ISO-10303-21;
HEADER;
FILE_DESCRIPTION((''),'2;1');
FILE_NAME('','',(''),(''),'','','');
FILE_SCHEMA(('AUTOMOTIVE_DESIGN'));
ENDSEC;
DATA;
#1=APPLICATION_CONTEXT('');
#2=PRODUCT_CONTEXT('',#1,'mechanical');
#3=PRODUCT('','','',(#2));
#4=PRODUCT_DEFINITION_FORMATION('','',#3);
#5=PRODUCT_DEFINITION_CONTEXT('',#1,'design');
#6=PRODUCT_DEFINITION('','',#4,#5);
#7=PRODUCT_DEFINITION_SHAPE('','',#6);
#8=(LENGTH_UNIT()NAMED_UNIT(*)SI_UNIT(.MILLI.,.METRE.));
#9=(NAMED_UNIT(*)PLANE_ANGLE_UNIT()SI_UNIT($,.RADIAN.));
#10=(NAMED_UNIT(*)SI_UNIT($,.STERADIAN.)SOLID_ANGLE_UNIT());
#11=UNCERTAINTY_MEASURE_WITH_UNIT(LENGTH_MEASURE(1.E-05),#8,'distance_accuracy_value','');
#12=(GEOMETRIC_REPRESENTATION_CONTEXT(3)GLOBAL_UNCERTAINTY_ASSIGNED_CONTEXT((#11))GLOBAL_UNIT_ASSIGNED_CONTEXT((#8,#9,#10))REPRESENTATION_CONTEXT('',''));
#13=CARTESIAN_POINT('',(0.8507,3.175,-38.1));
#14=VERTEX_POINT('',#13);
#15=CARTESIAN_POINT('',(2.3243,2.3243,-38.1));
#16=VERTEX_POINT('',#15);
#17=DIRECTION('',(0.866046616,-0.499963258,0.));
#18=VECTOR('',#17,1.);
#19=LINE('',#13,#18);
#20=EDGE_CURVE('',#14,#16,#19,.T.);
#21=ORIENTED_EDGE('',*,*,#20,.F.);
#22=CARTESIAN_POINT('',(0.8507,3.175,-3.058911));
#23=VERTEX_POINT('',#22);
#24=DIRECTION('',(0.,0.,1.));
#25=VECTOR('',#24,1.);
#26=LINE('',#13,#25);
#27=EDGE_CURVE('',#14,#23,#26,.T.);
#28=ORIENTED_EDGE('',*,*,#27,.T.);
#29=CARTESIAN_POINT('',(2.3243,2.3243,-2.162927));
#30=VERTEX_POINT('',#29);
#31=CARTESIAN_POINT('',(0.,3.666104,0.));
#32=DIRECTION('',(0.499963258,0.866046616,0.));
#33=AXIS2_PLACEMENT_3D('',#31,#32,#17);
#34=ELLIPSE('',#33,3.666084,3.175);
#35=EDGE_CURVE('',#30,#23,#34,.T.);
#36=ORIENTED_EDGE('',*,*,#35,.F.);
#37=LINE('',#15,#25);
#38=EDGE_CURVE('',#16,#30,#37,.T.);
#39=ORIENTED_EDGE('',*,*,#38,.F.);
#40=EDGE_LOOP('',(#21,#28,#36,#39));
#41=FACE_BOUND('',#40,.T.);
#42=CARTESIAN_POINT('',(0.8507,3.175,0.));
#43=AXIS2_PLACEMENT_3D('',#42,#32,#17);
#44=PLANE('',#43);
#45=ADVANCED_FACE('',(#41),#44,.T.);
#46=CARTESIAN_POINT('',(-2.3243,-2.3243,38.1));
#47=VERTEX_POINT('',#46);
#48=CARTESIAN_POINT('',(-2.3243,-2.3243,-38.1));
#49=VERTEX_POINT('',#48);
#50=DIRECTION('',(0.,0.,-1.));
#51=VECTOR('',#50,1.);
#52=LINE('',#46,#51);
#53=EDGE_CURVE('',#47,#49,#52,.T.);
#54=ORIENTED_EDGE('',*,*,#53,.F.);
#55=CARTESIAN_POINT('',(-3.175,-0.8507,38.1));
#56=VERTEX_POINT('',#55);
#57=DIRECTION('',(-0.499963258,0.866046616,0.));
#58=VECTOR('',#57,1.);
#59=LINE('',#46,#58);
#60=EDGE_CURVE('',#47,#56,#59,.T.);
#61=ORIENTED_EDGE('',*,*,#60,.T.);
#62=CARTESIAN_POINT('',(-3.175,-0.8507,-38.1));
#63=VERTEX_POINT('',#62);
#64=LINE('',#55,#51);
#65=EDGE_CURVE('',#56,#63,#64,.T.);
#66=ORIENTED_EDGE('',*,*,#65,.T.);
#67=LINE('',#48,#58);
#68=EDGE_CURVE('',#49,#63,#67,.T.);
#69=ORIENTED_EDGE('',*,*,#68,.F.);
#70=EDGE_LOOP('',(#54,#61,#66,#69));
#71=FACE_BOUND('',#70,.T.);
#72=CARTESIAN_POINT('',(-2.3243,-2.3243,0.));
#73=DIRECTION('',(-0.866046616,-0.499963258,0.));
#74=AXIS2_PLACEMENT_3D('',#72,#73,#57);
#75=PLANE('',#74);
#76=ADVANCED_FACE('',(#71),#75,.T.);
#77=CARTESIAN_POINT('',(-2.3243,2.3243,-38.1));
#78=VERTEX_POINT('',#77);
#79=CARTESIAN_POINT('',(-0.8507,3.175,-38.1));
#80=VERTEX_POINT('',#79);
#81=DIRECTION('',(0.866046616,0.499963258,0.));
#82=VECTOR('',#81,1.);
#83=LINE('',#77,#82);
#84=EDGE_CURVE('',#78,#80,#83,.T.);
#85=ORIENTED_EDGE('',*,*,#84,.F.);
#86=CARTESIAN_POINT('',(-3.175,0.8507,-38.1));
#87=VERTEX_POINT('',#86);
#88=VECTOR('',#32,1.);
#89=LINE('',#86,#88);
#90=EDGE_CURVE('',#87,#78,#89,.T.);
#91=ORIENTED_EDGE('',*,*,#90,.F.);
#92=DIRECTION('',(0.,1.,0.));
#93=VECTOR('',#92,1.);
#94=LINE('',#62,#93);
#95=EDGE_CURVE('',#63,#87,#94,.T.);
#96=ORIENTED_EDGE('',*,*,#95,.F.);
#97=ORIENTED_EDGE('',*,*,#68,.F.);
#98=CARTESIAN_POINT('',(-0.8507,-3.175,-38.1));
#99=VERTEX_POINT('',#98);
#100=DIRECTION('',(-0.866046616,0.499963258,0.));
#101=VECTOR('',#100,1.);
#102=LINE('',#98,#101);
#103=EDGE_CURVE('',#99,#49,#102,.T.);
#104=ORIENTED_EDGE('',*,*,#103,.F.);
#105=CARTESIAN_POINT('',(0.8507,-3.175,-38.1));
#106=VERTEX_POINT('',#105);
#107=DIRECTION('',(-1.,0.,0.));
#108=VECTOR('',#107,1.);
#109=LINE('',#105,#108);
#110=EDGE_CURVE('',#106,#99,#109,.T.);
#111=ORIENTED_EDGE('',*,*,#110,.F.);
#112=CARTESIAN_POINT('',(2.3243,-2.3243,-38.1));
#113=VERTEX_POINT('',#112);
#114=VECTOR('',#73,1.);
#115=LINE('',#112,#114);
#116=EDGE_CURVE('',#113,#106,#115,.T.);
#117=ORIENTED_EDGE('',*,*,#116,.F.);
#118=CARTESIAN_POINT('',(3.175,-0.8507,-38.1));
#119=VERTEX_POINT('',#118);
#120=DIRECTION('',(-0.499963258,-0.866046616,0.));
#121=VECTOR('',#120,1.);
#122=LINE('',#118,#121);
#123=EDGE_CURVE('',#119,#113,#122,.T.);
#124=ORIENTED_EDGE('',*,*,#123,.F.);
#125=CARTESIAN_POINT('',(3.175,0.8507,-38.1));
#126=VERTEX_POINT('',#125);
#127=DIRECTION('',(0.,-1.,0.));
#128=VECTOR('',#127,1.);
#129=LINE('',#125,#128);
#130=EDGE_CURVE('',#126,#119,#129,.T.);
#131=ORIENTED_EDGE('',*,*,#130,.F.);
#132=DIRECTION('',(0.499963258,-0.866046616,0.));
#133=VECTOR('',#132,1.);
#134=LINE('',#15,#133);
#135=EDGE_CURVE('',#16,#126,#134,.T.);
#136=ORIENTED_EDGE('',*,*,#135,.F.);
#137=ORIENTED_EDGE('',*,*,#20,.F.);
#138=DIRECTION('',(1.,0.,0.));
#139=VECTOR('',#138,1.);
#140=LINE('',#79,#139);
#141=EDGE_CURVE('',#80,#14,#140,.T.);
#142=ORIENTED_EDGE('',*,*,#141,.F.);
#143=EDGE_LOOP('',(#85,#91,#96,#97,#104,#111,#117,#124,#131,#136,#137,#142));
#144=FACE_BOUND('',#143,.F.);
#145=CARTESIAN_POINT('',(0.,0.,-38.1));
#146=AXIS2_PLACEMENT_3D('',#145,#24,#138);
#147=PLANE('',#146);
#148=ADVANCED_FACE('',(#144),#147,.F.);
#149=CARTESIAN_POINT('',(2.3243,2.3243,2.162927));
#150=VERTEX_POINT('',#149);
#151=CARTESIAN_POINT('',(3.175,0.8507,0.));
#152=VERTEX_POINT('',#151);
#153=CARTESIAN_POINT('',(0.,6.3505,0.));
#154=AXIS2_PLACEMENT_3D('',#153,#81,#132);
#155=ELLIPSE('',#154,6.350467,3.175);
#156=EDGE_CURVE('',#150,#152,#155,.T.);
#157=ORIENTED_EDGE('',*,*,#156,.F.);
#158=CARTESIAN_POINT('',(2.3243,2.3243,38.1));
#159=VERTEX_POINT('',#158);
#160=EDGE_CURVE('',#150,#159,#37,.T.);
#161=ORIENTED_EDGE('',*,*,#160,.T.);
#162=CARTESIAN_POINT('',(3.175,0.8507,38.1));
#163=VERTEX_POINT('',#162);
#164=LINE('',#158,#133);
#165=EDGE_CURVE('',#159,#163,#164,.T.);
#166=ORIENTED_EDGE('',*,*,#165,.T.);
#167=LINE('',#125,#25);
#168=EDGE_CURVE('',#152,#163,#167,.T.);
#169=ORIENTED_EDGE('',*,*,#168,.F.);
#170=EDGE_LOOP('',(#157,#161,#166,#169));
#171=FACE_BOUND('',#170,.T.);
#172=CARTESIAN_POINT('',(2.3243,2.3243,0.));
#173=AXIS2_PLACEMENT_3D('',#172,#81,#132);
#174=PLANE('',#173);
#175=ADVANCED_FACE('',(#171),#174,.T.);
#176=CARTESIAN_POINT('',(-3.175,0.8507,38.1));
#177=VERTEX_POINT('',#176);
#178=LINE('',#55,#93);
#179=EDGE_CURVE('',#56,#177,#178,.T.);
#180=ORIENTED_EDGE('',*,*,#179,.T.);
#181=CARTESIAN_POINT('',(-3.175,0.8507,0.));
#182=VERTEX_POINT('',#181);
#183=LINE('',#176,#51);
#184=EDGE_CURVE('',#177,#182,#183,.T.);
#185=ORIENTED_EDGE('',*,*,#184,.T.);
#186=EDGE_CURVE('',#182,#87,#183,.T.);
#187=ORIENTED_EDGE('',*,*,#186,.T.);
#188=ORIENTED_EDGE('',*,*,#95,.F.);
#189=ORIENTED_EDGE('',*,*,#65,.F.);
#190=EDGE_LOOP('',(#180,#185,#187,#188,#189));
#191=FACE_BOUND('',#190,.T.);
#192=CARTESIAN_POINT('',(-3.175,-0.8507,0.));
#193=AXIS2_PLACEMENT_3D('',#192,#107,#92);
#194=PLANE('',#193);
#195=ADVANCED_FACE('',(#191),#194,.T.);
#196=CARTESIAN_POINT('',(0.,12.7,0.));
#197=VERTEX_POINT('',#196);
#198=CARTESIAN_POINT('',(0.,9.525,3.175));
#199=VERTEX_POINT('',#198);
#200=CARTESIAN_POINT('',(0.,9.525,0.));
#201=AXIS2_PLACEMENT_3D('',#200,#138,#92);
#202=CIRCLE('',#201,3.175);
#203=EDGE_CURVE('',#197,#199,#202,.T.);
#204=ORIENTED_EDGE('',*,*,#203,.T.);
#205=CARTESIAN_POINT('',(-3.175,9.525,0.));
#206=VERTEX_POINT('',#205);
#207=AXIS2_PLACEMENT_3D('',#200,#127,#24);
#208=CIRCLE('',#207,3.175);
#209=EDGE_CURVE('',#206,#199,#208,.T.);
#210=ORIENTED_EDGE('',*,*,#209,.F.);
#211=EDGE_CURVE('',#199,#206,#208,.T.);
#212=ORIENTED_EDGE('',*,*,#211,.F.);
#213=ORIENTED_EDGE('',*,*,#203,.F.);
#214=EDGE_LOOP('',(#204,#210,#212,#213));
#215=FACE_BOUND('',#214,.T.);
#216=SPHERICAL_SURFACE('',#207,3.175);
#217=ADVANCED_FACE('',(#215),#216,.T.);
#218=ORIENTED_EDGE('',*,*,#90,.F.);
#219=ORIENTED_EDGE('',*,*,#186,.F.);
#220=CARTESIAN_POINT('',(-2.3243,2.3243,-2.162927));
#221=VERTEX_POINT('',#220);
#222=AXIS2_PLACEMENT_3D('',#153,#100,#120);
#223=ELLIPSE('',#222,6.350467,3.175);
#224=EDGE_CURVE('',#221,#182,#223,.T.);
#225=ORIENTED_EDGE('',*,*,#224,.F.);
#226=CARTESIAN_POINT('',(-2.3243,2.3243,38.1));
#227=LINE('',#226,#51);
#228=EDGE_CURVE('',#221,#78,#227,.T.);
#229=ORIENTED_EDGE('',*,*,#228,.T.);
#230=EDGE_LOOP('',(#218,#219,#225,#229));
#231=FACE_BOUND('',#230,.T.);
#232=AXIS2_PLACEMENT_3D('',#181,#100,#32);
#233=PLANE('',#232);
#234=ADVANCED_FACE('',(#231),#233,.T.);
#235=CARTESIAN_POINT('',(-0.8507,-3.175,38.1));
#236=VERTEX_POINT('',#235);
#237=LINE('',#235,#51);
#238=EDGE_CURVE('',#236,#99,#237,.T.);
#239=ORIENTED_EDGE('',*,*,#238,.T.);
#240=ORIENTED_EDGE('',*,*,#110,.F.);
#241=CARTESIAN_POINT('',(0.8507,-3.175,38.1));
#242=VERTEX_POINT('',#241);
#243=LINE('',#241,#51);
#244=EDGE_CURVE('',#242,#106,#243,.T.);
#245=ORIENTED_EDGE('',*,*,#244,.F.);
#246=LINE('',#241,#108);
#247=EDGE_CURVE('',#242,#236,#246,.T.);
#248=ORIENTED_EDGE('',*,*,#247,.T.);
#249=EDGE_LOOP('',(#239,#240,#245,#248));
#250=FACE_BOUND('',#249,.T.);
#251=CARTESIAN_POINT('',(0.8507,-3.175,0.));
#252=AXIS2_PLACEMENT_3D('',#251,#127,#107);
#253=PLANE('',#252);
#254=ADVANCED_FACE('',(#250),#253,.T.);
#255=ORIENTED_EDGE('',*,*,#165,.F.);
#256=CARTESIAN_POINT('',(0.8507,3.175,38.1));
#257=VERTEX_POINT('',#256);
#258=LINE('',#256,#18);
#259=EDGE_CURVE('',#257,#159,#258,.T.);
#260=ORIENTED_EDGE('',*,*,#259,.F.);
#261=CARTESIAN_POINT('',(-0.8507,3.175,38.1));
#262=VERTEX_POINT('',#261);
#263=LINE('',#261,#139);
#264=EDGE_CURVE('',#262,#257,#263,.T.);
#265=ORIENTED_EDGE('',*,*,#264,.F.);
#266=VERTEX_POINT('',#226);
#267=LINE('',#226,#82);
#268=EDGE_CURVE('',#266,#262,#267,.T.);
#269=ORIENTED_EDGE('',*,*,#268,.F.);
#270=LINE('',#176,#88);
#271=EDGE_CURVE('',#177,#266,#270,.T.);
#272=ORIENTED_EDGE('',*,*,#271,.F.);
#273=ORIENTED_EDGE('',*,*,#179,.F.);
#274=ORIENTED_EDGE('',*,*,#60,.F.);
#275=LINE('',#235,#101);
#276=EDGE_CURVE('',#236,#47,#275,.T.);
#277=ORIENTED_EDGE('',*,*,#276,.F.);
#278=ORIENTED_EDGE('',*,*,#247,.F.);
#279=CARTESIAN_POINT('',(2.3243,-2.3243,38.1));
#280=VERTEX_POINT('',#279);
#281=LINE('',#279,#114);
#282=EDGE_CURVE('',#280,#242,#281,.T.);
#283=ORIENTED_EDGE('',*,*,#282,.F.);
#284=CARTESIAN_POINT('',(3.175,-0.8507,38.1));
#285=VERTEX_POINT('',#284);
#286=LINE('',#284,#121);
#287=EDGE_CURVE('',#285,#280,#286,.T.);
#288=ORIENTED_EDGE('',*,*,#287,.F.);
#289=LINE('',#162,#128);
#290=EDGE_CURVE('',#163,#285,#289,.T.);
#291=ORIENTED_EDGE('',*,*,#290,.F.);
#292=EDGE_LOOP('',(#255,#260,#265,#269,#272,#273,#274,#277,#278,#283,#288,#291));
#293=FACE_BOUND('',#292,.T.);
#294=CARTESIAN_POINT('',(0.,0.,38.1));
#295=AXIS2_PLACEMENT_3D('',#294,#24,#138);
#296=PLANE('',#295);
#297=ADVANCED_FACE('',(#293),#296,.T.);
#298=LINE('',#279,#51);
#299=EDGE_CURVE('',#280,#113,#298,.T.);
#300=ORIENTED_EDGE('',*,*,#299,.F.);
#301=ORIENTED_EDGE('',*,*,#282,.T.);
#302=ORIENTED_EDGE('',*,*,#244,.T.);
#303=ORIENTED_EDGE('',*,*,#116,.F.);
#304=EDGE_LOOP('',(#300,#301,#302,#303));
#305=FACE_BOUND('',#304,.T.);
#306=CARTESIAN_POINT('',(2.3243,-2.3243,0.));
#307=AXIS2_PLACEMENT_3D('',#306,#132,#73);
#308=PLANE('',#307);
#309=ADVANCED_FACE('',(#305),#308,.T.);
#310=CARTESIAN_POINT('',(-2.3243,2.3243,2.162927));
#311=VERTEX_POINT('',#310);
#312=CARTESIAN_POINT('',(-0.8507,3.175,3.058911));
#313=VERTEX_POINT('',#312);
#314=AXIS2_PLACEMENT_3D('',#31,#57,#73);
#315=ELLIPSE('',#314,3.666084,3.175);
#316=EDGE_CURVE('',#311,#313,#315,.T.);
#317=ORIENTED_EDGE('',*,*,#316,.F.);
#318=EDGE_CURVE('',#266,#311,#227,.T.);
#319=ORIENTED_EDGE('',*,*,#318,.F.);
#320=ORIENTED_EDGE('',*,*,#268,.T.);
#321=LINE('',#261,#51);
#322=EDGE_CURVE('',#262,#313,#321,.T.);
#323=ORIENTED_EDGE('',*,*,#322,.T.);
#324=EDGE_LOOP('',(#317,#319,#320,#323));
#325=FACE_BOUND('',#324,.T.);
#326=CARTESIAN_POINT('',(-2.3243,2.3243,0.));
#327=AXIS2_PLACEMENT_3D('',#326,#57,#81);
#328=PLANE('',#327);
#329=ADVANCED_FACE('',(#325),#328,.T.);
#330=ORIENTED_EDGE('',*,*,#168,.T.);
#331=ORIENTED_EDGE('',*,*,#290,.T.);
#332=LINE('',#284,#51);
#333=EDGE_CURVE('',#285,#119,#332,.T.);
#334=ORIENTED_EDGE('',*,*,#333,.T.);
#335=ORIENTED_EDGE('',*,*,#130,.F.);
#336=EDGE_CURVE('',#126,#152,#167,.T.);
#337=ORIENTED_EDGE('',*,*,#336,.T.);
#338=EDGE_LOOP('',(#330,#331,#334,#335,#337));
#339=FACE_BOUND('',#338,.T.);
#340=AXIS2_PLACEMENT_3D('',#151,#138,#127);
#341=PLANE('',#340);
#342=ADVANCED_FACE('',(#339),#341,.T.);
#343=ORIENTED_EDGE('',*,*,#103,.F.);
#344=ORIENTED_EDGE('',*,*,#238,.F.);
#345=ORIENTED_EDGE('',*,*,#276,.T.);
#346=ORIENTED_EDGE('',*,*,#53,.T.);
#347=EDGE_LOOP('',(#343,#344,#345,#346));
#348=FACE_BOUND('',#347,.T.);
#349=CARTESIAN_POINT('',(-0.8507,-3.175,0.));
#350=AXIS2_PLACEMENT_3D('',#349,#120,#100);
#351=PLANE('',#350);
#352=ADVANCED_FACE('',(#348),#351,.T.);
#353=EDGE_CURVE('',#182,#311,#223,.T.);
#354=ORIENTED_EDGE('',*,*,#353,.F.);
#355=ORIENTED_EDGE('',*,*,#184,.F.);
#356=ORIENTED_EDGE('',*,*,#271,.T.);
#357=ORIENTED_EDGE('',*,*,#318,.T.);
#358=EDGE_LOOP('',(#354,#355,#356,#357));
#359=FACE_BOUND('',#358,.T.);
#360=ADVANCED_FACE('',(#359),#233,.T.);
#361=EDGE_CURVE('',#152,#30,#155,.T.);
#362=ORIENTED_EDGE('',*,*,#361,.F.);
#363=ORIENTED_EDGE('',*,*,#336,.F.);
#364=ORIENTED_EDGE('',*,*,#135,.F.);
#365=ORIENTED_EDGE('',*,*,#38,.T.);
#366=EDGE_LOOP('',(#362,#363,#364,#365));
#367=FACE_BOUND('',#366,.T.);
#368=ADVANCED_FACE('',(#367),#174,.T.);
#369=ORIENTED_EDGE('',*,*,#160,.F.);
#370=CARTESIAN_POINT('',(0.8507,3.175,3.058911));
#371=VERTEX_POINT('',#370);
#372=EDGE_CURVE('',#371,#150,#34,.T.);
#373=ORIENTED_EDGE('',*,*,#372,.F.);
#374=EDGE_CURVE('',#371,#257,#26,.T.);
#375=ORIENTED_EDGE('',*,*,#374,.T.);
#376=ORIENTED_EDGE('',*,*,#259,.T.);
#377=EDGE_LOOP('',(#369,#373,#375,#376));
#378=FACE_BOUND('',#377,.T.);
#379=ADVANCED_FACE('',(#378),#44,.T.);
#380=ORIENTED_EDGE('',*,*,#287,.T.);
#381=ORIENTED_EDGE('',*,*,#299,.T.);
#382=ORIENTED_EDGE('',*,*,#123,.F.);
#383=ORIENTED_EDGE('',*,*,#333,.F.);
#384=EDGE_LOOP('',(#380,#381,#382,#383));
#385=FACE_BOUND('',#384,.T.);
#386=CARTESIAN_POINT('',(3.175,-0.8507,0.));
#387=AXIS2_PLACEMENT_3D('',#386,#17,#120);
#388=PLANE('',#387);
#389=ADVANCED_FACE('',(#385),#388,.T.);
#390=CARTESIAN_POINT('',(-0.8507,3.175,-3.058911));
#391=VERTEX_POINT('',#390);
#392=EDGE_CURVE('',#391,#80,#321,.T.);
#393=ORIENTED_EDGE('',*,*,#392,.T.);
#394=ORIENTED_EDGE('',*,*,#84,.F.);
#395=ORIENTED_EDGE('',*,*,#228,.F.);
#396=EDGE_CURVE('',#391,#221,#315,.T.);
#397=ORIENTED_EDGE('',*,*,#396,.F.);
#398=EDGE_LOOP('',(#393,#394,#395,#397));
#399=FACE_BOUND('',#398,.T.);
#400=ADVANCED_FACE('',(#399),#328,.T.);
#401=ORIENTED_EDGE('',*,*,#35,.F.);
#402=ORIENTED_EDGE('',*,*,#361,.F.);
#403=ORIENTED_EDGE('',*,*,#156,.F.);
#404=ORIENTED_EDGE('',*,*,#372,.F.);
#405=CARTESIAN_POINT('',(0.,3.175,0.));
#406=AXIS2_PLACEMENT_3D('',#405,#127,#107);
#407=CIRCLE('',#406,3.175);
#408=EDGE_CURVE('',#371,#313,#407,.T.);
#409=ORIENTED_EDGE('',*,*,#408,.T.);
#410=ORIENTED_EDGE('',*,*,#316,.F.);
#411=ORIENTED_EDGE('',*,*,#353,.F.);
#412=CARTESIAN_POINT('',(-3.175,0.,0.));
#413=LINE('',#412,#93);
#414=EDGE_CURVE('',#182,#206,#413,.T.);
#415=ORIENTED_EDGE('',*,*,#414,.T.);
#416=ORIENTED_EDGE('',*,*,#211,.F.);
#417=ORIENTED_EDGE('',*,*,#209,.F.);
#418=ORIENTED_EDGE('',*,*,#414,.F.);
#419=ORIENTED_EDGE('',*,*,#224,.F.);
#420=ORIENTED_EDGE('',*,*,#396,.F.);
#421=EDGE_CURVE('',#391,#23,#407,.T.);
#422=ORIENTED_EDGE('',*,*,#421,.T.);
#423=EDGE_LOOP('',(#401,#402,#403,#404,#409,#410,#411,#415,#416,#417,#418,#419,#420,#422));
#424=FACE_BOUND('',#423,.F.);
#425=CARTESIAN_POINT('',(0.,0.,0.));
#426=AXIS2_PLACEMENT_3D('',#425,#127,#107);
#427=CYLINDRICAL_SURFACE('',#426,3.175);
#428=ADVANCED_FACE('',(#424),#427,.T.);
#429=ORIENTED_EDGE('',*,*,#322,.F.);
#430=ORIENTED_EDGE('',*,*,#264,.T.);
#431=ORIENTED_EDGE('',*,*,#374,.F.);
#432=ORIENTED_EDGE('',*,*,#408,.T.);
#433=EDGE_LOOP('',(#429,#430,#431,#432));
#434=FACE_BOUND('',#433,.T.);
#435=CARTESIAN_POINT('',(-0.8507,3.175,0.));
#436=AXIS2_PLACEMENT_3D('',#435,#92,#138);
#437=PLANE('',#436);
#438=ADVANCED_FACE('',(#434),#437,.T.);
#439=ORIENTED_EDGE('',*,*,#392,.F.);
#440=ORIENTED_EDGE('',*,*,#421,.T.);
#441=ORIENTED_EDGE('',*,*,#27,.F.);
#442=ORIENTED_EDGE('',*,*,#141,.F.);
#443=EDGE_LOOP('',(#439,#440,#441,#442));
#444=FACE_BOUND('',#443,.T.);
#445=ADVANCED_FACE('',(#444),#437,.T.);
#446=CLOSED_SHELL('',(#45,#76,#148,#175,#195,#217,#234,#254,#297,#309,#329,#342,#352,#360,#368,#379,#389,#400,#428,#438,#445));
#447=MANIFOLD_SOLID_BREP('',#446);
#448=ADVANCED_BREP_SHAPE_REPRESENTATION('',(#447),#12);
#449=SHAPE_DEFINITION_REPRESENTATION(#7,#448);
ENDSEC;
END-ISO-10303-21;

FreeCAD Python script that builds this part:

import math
import FreeCAD as App
import Part
import Sketcher

V = App.Vector
Q = App.Units.Quantity


def add_polygon(sketch, points):
    """Adds a closed chain of lines whose ends are joined by coincident constraints."""
    first, n = sketch.GeometryCount, len(points)
    for a, b in zip(points, points[1:] + points[:1]):
        sketch.addGeometry(Part.LineSegment(App.Vector(*a, 0), App.Vector(*b, 0)), False)
    for i in range(n):
        sketch.addConstraint(Sketcher.Constraint("Coincident", first + i, 2, first + (i + 1) % n, 1))

doc = App.newDocument("Part")
params = doc.addObject("Spreadsheet::Sheet", "Params")
for row, (alias, value) in enumerate([
    ("sketch1_length", "0.067 in"),
    ("pad1_length", "3 in"),
    ("sketch2_diameter", "0.25 in"),
    ("pad2_length", "0.5 in"),
    ("sketch3_radius", "0.125 in"),
    ("groove_angle", "360 deg"),
], start=1):
    params.set(f"A{row}", alias)
    params.set(f"B{row}", "=" + value)
    params.setAlias(f"B{row}", alias)

body = doc.addObject("PartDesign::Body", "Body")

sketch1 = body.newObject("Sketcher::SketchObject", "Sketch")
sketch1.AttachmentSupport = (doc.getObject("XY_Plane"), [""])
sketch1.MapMode = "FlatFace"
add_polygon(sketch1, [(3.175, -0.8507), (3.175, 0.8507), (2.3243, 2.3243), (0.8507, 3.175), (-0.8507, 3.175), (-2.3243, 2.3243), (-3.175, 0.8507), (-3.175, -0.8507), (-2.3243, -2.3243), (-0.8507, -3.175), (0.8507, -3.175), (2.3243, -2.3243)])
sketch1.addConstraint(Sketcher.Constraint("Vertical", 0))
sketch1.addConstraint(Sketcher.Constraint("Horizontal", 3))
sketch1.addConstraint(Sketcher.Constraint("Vertical", 6))
sketch1.addConstraint(Sketcher.Constraint("Horizontal", 9))
sketch1.addConstraint(Sketcher.Constraint("Symmetric", 0, 2, 6, 2, -1, 1))
sketch1.addConstraint(Sketcher.Constraint("Symmetric", 1, 2, 7, 2, -1, 1))
sketch1.addConstraint(Sketcher.Constraint("Symmetric", 2, 2, 8, 2, -1, 1))
sketch1.addConstraint(Sketcher.Constraint("Symmetric", 4, 2, 10, 2, -1, 1))
sketch1.addConstraint(Sketcher.Constraint("Symmetric", 1, 2, 4, 2, -2))
sketch1.addConstraint(Sketcher.Constraint("Perpendicular", 1, 4))
sketch1.addConstraint(Sketcher.Constraint("Perpendicular", 2, 5))
sketch1.addConstraint(Sketcher.Constraint("Perpendicular", 7, 10))
sketch1.addConstraint(Sketcher.Constraint("Perpendicular", 8, 11))
sketch1.addConstraint(Sketcher.Constraint("Horizontal", 0, 2, 5, 2))
sketch1.addConstraint(Sketcher.Constraint("Equal", 9, 0))
sketch1.addConstraint(Sketcher.Constraint("Equal", 1, 2))
sketch1.addConstraint(Sketcher.Constraint("DistanceX", 5, 2, 0, 2, Q("0.25 in")))
sketch1.addConstraint(Sketcher.Constraint("Distance", 1, Q("0.067 in")))
sketch1.addConstraint(Sketcher.Constraint("DistanceX", 3, 2, 1, 2, Q("0.125 in")))
sketch1.setExpression("Constraints[29]", "Params.sketch1_length")
pad1 = body.newObject("PartDesign::Pad", "Pad")
pad1.Profile = sketch1
pad1.setExpression("Length", "Params.pad1_length")
pad1.Midplane = True

sketch2 = body.newObject("Sketcher::SketchObject", "Sketch001")
sketch2.AttachmentSupport = (doc.getObject("XZ_Plane"), [""])
sketch2.MapMode = "FlatFace"
sketch2.addGeometry(Part.Circle(V(0, 0, 0), V(0, 0, 1), 3.175), False)
sketch2.addConstraint(Sketcher.Constraint("Coincident", 0, 3, -1, 1))
sketch2.addConstraint(Sketcher.Constraint("Diameter", 0, Q("0.25 in")))
sketch2.setExpression("Constraints[1]", "Params.sketch2_diameter")
pad2 = body.newObject("PartDesign::Pad", "Pad001")
pad2.Profile = sketch2
pad2.setExpression("Length", "Params.pad2_length")
pad2.Reversed = True

sketch3 = body.newObject("Sketcher::SketchObject", "Sketch002")
sketch3.AttachmentSupport = (doc.getObject("YZ_Plane"), [""])
sketch3.MapMode = "FlatFace"
sketch3.addGeometry(Part.ArcOfCircle(Part.Circle(V(9.525, 0, 0), V(0, 0, 1), 3.175), math.radians(0), math.radians(90)), False)
sketch3.addGeometry(Part.LineSegment(V(12.7, 0, 0), V(12.7, 3.175, 0)), False)
sketch3.addGeometry(Part.LineSegment(V(12.7, 3.175, 0), V(9.525, 3.175, 0)), False)
sketch3.addConstraint(Sketcher.Constraint("Tangent", 0, 1, 1, 1))
sketch3.addConstraint(Sketcher.Constraint("Coincident", 1, 2, 2, 1))
sketch3.addConstraint(Sketcher.Constraint("Tangent", 2, 2, 0, 2))
sketch3.addConstraint(Sketcher.Constraint("Vertical", 1))
sketch3.addConstraint(Sketcher.Constraint("Horizontal", 2))
sketch3.addConstraint(Sketcher.Constraint("PointOnObject", 0, 3, -1))
sketch3.addConstraint(Sketcher.Constraint("Radius", 0, Q("0.125 in")))
sketch3.addConstraint(Sketcher.Constraint("DistanceX", -1, 1, 0, 1, Q("0.5 in")))
sketch3.setExpression("Constraints[6]", "Params.sketch3_radius")
groove = body.newObject("PartDesign::Groove", "Groove")
groove.Profile = sketch3
groove.ReferenceAxis = (sketch3, ["H_Axis"])
groove.setExpression("Angle", "Params.groove_angle")

doc.recompute()
